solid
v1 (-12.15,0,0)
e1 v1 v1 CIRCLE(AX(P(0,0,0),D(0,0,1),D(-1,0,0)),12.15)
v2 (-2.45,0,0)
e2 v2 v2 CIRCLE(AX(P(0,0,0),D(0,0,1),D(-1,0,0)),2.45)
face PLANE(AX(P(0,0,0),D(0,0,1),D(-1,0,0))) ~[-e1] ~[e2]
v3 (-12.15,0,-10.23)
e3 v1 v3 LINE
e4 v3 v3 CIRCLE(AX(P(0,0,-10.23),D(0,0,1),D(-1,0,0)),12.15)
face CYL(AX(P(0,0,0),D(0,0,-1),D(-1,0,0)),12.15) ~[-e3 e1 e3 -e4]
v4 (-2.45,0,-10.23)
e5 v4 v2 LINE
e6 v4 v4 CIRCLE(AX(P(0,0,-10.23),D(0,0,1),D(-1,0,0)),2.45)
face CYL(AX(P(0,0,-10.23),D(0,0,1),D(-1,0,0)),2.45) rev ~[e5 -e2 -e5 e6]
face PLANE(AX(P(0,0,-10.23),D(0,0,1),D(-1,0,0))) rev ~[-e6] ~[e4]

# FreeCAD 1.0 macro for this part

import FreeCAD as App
import Part
import Sketcher
Q = App.Units.Quantity

doc = App.newDocument("Part")
body = doc.addObject("PartDesign::Body", "Body")

sketch1 = doc.addObject("Sketcher::SketchObject", "Sketch")
body.addObject(sketch1)
sketch1.AttachmentSupport = (doc.XZ_Plane, [""])
sketch1.MapMode = "FlatFace"
sketch1.addGeometry([
    Part.LineSegment(App.Vector(-2.45, -10.23, 0), App.Vector(-12.15, -10.23, 0)),
    Part.LineSegment(App.Vector(-12.15, -10.23, 0), App.Vector(-12.15, 0, 0)),
    Part.LineSegment(App.Vector(-12.15, 0, 0), App.Vector(-2.45, 0, 0)),
    Part.LineSegment(App.Vector(-2.45, 0, 0), App.Vector(-2.45, -10.23, 0)),
], False)
sketch1.addConstraint([
    Sketcher.Constraint("Coincident", 0, 2, 1, 1),
    Sketcher.Constraint("Coincident", 1, 2, 2, 1),
    Sketcher.Constraint("Coincident", 2, 2, 3, 1),
    Sketcher.Constraint("Coincident", 3, 2, 0, 1),
    Sketcher.Constraint("Horizontal", 0),
    Sketcher.Constraint("Vertical", 1),
    Sketcher.Constraint("Horizontal", 2),
    Sketcher.Constraint("Vertical", 3),
    Sketcher.Constraint("PointOnObject", 1, 2, -1),
    Sketcher.Constraint("DistanceX", 0, 2, 0, 1, Q("9.7 mm")),
    Sketcher.Constraint("DistanceY", 1, 1, 1, 2, Q("10.23 mm")),
    Sketcher.Constraint("DistanceX", 0, 2, -1, 1, Q("12.15 mm")),
])
revolution = doc.addObject("PartDesign::Revolution", "Revolution")
body.addObject(revolution)
revolution.Profile = sketch1
revolution.ReferenceAxis = (sketch1, ["V_Axis"])
revolution.Angle = 360

doc.recompute()
